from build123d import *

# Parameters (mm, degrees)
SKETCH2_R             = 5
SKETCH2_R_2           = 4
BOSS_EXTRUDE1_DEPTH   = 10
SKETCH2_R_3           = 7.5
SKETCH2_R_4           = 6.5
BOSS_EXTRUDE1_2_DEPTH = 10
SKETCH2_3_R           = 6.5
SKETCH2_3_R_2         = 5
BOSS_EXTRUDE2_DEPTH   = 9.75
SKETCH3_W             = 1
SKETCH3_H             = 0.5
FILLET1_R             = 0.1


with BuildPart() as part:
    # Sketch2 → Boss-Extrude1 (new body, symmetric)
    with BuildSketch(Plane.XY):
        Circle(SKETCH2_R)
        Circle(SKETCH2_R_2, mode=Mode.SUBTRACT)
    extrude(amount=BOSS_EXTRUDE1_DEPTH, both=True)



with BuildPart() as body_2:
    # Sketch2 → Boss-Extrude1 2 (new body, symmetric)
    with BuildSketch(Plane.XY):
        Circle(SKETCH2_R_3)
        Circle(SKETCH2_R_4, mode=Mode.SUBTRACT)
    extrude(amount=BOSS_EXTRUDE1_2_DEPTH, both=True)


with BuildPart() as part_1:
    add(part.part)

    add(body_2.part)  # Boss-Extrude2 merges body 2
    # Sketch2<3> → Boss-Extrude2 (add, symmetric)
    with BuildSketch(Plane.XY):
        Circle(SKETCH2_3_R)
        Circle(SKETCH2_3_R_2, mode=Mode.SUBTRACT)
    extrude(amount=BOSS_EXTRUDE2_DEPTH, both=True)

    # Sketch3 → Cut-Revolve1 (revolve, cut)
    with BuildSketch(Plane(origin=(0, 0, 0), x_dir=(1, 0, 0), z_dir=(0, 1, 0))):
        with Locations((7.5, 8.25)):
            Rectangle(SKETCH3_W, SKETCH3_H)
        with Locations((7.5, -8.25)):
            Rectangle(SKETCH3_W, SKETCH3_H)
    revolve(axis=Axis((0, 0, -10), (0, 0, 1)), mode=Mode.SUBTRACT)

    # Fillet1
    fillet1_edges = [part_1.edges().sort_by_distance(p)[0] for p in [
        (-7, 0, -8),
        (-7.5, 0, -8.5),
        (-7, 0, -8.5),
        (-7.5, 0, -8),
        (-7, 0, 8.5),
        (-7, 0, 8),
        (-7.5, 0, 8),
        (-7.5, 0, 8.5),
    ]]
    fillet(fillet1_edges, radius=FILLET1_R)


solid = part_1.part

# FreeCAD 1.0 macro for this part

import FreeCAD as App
import Part
import Sketcher
from FreeCAD import Vector


def edges_at(feature, points):
    """Names of the edges that pass closest to the given points."""
    edges = feature.Shape.Edges
    near = lambda p: min(range(len(edges)), key=lambda i: edges[i].distToShape(Part.Vertex(*p))[0])
    return sorted({f"Edge{near(p) + 1}" for p in points})

doc = App.newDocument("Part")
params = doc.addObject("Spreadsheet::Sheet", "Params")
for row, (alias, value) in enumerate([
    ("sketch1_diameter", "10 mm"),
    ("sketch1_diameter2", "8 mm"),
    ("pad1_length", "20 mm"),
    ("sketch2_diameter", "15 mm"),
    ("sketch2_diameter2", "13 mm"),
    ("pad2_length", "20 mm"),
    ("sketch3_diameter", "13 mm"),
    ("sketch3_diameter2", "10 mm"),
    ("pad3_length", "19.5 mm"),
    ("sketch4_width", "1 mm"),
    ("sketch4_height", "0.5 mm"),
    ("groove_angle", "360 deg"),
    ("fillet_radius", "0.1 mm"),
], start=1):
    params.set(f"A{row}", alias)
    params.set(f"B{row}", "=" + value)
    params.setAlias(f"B{row}", alias)

body = doc.addObject("PartDesign::Body", "Body")

# Sketch on XY plane
sketch1 = doc.addObject("Sketcher::SketchObject", "Sketch")
body.addObject(sketch1)
sketch1.AttachmentSupport = (doc.XY_Plane, [""])
sketch1.MapMode = "FlatFace"
sketch1.addGeometry([
    Part.Circle(Vector(0, 0, 0), Vector(0, 0, 1), 5),
    Part.Circle(Vector(0, 0, 0), Vector(0, 0, 1), 4),
], False)
sketch1.addConstraint([
    Sketcher.Constraint("Coincident", 0, 3, -1, 1),
    Sketcher.Constraint("Coincident", 1, 3, -1, 1),
    Sketcher.Constraint("Diameter", 0, 10.0),
    Sketcher.Constraint("Diameter", 1, 8.0),
])
sketch1.setExpression("Constraints[2]", "Params.sketch1_diameter")
sketch1.setExpression("Constraints[3]", "Params.sketch1_diameter2")
pad1 = doc.addObject("PartDesign::Pad", "Pad")
body.addObject(pad1)
pad1.Profile = sketch1
pad1.setExpression("Length", "Params.pad1_length")
pad1.Midplane = True
body2 = doc.addObject("PartDesign::Body", "Body001")

# Sketch on XY plane
sketch2 = doc.addObject("Sketcher::SketchObject", "Sketch001")
body2.addObject(sketch2)
sketch2.AttachmentSupport = (doc.getObject("XY_Plane001"), [""])
sketch2.MapMode = "FlatFace"
sketch2.addGeometry([
    Part.Circle(Vector(0, 0, 0), Vector(0, 0, 1), 8),
    Part.Circle(Vector(0, 0, 0), Vector(0, 0, 1), 6),
], False)
sketch2.addConstraint([
    Sketcher.Constraint("Coincident", 0, 3, -1, 1),
    Sketcher.Constraint("Coincident", 1, 3, -1, 1),
    Sketcher.Constraint("Diameter", 0, 15.0),
    Sketcher.Constraint("Diameter", 1, 13.0),
])
sketch2.setExpression("Constraints[2]", "Params.sketch2_diameter")
sketch2.setExpression("Constraints[3]", "Params.sketch2_diameter2")
pad2 = doc.addObject("PartDesign::Pad", "Pad001")
body2.addObject(pad2)
pad2.Profile = sketch2
pad2.setExpression("Length", "Params.pad2_length")
pad2.Midplane = True
body.AllowCompound = True
doc.recompute()

boolean = doc.addObject("PartDesign::Boolean", "Boolean")
body.addObject(boolean)
boolean.Type = "Fuse"
boolean.addObjects([body2])

# Sketch on XY plane
sketch3 = doc.addObject("Sketcher::SketchObject", "Sketch002")
body.addObject(sketch3)
sketch3.AttachmentSupport = (doc.XY_Plane, [""])
sketch3.MapMode = "FlatFace"
sketch3.addGeometry([
    Part.Circle(Vector(0, 0, 0), Vector(0, 0, 1), 6),
    Part.Circle(Vector(0, 0, 0), Vector(0, 0, 1), 5),
], False)
sketch3.addConstraint([
    Sketcher.Constraint("Coincident", 0, 3, -1, 1),
    Sketcher.Constraint("Coincident", 1, 3, -1, 1),
    Sketcher.Constraint("Diameter", 0, 13.0),
    Sketcher.Constraint("Diameter", 1, 10.0),
])
sketch3.setExpression("Constraints[2]", "Params.sketch3_diameter")
sketch3.setExpression("Constraints[3]", "Params.sketch3_diameter2")
pad3 = doc.addObject("PartDesign::Pad", "Pad002")
body.addObject(pad3)
pad3.Profile = sketch3
pad3.setExpression("Length", "Params.pad3_length")
pad3.Midplane = True

# Sketch on XZ plane
sketch4 = doc.addObject("Sketcher::SketchObject", "Sketch003")
body.addObject(sketch4)
sketch4.AttachmentSupport = (doc.XZ_Plane, [""])
sketch4.MapMode = "FlatFace"
sketch4.addGeometry([
    Part.LineSegment(Vector(7, -8.5, 0), Vector(7, -8, 0)),  # 0
    Part.LineSegment(Vector(7, -8, 0), Vector(8, -8, 0)),  # 1
    Part.LineSegment(Vector(8, -8, 0), Vector(8, -8.5, 0)),  # 2
    Part.LineSegment(Vector(8, -8.5, 0), Vector(7, -8.5, 0)),  # 3
    Part.LineSegment(Vector(7, 8, 0), Vector(7, 8.5, 0)),  # 4
    Part.LineSegment(Vector(7, 8.5, 0), Vector(8, 8.5, 0)),  # 5
    Part.LineSegment(Vector(8, 8.5, 0), Vector(8, 8, 0)),  # 6
    Part.LineSegment(Vector(8, 8, 0), Vector(7, 8, 0)),  # 7
], False)
sketch4.addConstraint([
    Sketcher.Constraint("Coincident", 0, 2, 1, 1),
    Sketcher.Constraint("Coincident", 1, 2, 2, 1),
    Sketcher.Constraint("Coincident", 2, 2, 3, 1),
    Sketcher.Constraint("Coincident", 3, 2, 0, 1),
    Sketcher.Constraint("Coincident", 4, 2, 5, 1),
    Sketcher.Constraint("Coincident", 5, 2, 6, 1),
    Sketcher.Constraint("Coincident", 6, 2, 7, 1),
    Sketcher.Constraint("Coincident", 7, 2, 4, 1),
    Sketcher.Constraint("Vertical", 0),
    Sketcher.Constraint("Horizontal", 1),
    Sketcher.Constraint("Vertical", 2),
    Sketcher.Constraint("Horizontal", 3),
    Sketcher.Constraint("Vertical", 4),
    Sketcher.Constraint("Horizontal", 5),
    Sketcher.Constraint("Vertical", 6),
    Sketcher.Constraint("Horizontal", 7),
    Sketcher.Constraint("Symmetric", 3, 2, 4, 2, -1),
    Sketcher.Constraint("Symmetric", 1, 2, 6, 2, -1),
    Sketcher.Constraint("DistanceX", 1, 1, 1, 2, 1.0),
    Sketcher.Constraint("DistanceY", 0, 1, 0, 2, 0.5),
    Sketcher.Constraint("DistanceX", -1, 1, 0, 2, 7.0),
    Sketcher.Constraint("DistanceY", 0, 2, -1, 1, 8.0),
])
sketch4.setExpression("Constraints[18]", "Params.sketch4_width")
sketch4.setExpression("Constraints[19]", "Params.sketch4_height")
groove = doc.addObject("PartDesign::Groove", "Groove")
body.addObject(groove)
groove.Profile = sketch4
groove.ReferenceAxis = (sketch4, ["V_Axis"])
groove.setExpression("Angle", "Params.groove_angle")
doc.recompute()

fillet = doc.addObject("PartDesign::Fillet", "Fillet")
body.addObject(fillet)
fillet.Base = (groove, edges_at(groove, [
    (-7, 0, -8),
    (-7.5, 0, -8.5),
    (-7, 0, -8.5),
    (-7.5, 0, -8),
    (-7, 0, 8.5),
    (-7, 0, 8),
    (-7.5, 0, 8),
    (-7.5, 0, 8.5),
]))
fillet.setExpression("Radius", "Params.fillet_radius")

doc.recompute()
